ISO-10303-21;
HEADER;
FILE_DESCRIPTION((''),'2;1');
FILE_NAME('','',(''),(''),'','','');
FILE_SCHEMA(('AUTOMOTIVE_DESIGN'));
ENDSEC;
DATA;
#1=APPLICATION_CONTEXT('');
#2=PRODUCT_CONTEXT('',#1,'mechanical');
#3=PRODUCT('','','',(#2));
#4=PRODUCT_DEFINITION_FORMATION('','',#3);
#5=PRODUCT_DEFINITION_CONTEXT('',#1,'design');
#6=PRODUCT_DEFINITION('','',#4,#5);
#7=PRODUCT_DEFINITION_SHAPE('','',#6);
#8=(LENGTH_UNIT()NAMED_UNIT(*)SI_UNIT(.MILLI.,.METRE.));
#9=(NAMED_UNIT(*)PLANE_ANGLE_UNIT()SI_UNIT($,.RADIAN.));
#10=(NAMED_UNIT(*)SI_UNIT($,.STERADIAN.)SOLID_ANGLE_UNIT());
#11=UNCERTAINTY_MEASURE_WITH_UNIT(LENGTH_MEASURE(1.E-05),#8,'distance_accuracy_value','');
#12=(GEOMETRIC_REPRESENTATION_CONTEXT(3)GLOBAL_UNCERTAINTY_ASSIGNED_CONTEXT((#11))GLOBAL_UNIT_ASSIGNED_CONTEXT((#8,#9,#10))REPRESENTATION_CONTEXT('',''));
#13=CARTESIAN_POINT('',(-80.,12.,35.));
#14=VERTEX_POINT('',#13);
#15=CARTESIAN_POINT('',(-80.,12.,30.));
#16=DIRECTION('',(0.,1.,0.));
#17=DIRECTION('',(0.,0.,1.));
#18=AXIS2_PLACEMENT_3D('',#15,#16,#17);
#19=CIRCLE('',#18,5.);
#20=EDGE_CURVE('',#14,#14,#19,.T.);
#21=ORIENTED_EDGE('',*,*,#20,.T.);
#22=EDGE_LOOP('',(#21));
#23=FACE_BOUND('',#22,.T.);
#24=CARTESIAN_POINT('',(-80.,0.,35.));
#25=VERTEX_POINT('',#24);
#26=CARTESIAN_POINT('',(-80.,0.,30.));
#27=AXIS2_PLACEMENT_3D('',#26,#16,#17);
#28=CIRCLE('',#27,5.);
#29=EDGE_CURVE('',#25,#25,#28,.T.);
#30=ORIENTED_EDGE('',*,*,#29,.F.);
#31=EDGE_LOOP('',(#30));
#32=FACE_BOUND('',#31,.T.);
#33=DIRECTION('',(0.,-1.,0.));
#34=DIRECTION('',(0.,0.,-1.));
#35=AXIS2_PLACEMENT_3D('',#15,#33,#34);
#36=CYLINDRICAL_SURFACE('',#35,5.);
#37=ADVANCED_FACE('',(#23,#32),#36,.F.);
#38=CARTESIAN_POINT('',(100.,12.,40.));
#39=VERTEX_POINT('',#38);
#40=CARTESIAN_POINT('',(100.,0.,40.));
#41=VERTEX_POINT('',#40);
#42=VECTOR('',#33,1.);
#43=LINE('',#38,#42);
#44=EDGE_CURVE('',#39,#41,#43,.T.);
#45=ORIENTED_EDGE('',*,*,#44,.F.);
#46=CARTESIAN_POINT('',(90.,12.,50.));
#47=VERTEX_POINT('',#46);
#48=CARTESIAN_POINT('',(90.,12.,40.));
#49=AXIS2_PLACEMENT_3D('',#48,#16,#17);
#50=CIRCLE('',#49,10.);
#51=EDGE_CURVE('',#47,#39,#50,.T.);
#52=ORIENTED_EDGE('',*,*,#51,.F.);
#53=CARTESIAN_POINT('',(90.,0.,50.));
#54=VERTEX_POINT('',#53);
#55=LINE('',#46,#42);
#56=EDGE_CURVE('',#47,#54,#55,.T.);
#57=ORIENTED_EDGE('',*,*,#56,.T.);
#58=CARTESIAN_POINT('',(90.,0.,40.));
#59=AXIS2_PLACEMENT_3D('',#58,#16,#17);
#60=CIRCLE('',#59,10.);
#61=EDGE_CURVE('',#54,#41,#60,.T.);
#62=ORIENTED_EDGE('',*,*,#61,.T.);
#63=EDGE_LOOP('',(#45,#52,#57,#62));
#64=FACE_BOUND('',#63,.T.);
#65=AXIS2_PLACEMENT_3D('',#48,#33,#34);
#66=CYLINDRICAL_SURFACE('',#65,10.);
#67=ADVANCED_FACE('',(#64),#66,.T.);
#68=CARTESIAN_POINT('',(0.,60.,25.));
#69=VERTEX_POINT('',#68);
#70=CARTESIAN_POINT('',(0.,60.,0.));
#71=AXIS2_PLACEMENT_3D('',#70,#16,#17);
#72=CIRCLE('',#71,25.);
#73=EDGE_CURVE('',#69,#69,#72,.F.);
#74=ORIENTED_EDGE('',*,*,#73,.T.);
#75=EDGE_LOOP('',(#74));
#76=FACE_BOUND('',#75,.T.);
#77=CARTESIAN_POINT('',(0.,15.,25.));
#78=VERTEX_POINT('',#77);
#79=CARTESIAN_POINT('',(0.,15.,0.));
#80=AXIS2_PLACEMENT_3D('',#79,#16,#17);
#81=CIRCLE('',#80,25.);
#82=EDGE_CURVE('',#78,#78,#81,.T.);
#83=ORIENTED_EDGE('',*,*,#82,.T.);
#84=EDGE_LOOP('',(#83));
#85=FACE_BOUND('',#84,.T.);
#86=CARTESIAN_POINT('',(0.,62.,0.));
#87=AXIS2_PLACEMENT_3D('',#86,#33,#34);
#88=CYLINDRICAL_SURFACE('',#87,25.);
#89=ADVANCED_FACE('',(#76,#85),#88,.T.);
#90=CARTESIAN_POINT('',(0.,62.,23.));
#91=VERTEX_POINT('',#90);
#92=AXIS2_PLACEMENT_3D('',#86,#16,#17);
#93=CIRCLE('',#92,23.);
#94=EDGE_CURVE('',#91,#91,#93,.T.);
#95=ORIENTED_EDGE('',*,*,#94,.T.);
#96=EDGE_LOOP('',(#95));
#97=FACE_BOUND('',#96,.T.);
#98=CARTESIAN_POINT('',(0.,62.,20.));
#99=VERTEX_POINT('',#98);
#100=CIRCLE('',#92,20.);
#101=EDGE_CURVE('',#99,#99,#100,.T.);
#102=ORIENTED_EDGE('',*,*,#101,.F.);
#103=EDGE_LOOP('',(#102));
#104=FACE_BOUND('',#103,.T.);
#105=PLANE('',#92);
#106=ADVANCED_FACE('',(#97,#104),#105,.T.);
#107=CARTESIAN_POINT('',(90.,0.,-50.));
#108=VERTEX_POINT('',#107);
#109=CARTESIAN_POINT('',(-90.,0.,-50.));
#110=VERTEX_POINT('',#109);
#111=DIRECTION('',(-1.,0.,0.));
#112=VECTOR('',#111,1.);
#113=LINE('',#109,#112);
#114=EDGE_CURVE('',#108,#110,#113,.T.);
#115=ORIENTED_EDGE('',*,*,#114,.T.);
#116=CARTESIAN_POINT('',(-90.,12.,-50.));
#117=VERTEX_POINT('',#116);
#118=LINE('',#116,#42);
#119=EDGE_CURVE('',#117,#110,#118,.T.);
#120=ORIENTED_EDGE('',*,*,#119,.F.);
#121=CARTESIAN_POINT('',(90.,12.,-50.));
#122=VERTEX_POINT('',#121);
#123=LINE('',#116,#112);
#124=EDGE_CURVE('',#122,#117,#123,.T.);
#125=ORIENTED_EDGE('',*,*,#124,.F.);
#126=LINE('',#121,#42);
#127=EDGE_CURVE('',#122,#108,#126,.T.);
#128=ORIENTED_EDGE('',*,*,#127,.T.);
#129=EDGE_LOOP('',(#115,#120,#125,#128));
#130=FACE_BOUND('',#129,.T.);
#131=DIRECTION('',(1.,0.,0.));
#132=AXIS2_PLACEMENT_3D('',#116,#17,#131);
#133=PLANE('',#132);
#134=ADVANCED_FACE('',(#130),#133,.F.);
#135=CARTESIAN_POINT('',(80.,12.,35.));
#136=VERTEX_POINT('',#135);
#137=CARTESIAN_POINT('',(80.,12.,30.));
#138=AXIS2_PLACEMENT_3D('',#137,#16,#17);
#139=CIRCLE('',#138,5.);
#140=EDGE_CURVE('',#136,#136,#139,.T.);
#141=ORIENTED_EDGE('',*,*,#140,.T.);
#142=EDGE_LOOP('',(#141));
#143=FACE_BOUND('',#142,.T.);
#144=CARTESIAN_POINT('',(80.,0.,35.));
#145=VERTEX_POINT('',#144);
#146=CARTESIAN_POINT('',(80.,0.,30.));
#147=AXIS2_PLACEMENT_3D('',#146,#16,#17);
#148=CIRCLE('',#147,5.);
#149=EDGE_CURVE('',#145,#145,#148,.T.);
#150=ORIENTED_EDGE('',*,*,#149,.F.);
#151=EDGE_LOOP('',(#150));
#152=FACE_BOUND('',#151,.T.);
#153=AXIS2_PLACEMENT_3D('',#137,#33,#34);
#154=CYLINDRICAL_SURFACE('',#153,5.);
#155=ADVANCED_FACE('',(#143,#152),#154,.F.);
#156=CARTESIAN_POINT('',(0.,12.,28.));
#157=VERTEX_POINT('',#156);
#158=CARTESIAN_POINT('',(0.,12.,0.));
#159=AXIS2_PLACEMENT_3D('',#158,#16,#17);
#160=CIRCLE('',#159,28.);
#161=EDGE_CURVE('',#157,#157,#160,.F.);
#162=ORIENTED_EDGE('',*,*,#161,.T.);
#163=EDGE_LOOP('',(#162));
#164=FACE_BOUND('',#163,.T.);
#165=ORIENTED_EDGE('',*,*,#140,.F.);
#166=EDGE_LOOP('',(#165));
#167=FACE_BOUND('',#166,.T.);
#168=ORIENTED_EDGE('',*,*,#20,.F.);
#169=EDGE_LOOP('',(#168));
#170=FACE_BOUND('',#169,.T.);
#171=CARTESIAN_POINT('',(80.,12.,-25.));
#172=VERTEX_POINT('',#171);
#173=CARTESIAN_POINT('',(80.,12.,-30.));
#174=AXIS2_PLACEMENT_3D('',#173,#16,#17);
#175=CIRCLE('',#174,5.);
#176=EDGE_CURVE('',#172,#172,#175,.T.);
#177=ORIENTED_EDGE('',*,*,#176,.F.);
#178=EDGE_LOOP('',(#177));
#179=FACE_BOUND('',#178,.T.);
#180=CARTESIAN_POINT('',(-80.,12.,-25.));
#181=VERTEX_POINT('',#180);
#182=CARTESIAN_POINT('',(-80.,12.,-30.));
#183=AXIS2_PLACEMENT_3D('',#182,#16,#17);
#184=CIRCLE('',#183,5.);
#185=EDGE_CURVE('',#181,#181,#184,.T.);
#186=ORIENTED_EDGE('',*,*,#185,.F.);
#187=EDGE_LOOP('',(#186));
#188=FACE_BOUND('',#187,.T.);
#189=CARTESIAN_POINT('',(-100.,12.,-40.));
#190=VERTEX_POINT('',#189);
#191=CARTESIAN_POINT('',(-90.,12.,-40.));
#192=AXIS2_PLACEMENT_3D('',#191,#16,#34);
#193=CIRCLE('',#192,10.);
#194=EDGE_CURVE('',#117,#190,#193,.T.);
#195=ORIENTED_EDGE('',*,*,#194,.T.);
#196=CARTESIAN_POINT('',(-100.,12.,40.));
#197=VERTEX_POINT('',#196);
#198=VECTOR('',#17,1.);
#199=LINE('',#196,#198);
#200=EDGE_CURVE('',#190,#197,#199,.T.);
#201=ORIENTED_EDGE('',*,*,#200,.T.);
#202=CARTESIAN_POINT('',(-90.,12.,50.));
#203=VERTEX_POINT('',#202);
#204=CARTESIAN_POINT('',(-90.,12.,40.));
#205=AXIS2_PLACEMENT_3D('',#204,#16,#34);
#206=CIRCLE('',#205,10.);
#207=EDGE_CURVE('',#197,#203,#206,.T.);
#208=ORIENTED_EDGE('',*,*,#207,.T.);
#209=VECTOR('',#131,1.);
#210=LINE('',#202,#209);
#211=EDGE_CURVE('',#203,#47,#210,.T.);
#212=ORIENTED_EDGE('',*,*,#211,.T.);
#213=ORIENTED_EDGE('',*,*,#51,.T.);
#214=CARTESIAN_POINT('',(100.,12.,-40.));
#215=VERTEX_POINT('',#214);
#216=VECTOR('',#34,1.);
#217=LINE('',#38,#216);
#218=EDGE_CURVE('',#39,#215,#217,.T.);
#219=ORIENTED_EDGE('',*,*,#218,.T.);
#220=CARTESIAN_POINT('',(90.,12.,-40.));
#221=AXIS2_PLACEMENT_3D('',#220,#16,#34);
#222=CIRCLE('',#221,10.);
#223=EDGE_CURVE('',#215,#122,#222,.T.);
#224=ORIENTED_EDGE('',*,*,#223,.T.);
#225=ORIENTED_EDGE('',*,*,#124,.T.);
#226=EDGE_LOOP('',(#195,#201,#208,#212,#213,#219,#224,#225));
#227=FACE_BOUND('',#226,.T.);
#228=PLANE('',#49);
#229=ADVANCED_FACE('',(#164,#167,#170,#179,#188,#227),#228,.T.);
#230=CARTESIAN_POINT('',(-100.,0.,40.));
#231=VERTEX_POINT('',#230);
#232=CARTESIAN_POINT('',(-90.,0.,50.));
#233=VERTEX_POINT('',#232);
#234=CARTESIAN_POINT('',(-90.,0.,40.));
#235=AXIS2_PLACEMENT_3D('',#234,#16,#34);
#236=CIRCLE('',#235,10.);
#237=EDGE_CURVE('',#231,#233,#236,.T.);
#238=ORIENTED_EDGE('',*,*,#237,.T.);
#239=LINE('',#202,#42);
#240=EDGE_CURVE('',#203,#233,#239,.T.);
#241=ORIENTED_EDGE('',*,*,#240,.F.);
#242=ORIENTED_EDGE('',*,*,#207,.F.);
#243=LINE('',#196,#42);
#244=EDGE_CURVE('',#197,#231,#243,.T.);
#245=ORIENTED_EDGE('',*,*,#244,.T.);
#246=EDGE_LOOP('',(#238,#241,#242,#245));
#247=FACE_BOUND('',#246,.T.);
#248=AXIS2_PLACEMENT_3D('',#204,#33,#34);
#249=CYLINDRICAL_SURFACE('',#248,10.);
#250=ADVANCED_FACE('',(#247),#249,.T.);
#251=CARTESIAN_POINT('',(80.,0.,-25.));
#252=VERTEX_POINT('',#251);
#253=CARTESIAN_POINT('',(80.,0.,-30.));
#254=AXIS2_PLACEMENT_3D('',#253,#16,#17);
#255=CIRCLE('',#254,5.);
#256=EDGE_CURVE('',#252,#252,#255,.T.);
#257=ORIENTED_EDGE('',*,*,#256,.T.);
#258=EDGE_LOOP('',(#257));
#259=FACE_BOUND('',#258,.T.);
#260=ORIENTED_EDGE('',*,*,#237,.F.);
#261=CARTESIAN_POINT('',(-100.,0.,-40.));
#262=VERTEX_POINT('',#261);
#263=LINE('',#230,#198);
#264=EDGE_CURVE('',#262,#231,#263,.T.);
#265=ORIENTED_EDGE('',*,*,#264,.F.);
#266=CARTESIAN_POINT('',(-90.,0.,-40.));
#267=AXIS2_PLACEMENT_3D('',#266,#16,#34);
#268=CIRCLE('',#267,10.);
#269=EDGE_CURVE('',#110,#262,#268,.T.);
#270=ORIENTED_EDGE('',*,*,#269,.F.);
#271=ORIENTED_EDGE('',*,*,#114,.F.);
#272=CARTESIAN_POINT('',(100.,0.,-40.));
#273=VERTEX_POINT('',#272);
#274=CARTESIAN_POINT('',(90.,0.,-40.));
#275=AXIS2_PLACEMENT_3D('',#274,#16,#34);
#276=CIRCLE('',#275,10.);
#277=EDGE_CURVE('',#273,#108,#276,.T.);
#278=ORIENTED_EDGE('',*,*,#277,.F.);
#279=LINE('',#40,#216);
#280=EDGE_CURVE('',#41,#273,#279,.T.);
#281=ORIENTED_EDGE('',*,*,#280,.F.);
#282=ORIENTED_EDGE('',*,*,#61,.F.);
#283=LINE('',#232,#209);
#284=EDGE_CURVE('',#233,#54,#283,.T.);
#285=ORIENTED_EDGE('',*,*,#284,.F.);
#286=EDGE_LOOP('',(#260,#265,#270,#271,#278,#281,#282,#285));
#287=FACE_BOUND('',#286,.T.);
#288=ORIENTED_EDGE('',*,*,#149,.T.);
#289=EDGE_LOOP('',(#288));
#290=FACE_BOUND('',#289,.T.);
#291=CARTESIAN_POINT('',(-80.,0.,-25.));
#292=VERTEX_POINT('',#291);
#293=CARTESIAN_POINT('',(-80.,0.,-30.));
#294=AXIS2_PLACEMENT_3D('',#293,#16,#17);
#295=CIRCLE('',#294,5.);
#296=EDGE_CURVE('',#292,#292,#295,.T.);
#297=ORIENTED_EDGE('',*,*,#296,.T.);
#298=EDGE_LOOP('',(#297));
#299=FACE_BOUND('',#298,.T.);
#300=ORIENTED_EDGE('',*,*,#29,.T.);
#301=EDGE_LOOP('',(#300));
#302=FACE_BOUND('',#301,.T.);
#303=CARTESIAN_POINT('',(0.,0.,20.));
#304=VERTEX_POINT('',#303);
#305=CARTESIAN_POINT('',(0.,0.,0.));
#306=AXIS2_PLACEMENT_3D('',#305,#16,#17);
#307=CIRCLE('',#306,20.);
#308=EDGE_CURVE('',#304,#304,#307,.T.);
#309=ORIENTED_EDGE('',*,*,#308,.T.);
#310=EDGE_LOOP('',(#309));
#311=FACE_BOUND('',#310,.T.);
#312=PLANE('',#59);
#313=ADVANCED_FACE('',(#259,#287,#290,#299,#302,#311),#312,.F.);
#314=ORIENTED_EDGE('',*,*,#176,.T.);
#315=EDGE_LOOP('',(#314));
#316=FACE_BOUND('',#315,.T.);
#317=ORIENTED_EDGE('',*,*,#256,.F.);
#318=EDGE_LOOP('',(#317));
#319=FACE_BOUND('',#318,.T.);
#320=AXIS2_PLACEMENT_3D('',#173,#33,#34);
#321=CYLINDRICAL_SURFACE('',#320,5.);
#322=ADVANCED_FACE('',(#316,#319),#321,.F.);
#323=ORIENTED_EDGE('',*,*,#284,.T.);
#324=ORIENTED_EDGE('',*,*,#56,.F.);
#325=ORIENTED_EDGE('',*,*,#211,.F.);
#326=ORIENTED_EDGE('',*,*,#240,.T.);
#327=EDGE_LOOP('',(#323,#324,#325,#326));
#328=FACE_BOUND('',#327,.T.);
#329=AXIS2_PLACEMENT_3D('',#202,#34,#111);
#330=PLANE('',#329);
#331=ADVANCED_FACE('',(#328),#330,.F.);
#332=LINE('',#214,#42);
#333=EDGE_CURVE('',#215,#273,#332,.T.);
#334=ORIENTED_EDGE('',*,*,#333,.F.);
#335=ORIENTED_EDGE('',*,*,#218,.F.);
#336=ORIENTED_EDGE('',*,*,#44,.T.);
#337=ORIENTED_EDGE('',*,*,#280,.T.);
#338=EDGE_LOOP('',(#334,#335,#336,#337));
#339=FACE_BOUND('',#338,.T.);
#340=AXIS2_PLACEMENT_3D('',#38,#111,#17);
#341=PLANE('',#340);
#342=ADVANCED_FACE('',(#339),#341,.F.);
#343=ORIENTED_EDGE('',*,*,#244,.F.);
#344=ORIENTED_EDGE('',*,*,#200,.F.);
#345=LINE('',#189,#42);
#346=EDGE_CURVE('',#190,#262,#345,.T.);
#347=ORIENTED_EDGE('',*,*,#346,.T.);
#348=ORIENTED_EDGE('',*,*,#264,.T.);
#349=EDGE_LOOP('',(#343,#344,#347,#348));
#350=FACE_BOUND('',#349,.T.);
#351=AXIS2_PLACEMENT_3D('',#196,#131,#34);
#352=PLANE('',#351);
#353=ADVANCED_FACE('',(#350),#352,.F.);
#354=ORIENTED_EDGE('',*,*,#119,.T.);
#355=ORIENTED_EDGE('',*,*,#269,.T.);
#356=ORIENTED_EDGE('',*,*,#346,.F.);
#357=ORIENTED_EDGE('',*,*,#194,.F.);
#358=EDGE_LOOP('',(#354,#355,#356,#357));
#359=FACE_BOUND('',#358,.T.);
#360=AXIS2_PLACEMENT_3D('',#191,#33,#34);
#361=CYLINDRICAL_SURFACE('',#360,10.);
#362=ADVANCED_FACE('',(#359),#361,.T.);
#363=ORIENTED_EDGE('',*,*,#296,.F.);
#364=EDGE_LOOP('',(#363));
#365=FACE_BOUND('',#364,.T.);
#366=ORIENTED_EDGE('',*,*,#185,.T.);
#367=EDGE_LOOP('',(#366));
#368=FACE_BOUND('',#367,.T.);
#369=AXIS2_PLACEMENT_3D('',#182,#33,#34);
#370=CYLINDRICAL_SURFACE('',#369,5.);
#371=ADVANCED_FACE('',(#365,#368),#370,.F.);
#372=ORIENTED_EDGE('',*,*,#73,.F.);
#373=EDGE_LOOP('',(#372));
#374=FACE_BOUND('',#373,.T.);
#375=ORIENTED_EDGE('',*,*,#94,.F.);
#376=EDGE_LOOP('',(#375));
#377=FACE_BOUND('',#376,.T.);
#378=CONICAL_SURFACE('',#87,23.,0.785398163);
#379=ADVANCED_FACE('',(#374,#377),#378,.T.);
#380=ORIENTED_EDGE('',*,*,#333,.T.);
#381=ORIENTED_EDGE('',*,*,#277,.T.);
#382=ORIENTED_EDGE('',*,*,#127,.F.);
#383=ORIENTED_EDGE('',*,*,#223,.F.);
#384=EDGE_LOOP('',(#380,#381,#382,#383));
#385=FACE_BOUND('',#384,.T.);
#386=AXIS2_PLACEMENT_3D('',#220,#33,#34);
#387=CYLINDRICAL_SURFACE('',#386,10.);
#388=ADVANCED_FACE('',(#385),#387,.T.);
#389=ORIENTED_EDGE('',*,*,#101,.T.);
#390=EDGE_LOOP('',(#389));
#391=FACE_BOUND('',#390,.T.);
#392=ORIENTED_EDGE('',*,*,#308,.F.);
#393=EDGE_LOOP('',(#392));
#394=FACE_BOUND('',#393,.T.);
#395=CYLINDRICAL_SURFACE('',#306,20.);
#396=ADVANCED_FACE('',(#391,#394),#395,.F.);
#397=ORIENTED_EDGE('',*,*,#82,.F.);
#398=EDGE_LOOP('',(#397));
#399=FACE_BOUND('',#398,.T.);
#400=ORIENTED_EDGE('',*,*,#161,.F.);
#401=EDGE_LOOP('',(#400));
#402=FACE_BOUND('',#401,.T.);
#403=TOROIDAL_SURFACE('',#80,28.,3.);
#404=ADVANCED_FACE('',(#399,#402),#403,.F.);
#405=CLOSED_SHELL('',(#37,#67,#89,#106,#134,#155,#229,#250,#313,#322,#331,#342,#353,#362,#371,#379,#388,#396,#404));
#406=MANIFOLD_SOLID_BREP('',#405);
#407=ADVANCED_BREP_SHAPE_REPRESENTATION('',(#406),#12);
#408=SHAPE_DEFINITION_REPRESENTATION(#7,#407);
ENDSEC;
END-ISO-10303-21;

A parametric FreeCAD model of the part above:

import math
import FreeCAD as App
import Part
import Sketcher

V = App.Vector


def edges_at(feature, points):
    """Names of the edges that pass closest to the given points."""
    edges = feature.Shape.Edges
    near = lambda p: min(range(len(edges)), key=lambda i: edges[i].distToShape(Part.Vertex(*p))[0])
    return sorted({f"Edge{near(p) + 1}" for p in points})

doc = App.newDocument("Part")
body = doc.addObject("PartDesign::Body", "Body")

sketch1 = body.newObject("Sketcher::SketchObject", "Sketch")
sketch1.AttachmentSupport = (doc.getObject("XZ_Plane"), [""])
sketch1.MapMode = "FlatFace"
sketch1.addGeometry([
    Part.LineSegment(V(-90, 50, 0), V(90, 50, 0)),
    Part.ArcOfCircle(Part.Circle(V(90, 40, 0), V(0, 0, 1), 10), math.radians(0), math.radians(90)),
    Part.LineSegment(V(100, 40, 0), V(100, -40, 0)),
    Part.ArcOfCircle(Part.Circle(V(90, -40, 0), V(0, 0, 1), 10), math.radians(-90), math.radians(0)),
    Part.LineSegment(V(90, -50, 0), V(-90, -50, 0)),
    Part.ArcOfCircle(Part.Circle(V(-90, -40, 0), V(0, 0, 1), 10), math.radians(180), math.radians(270)),
    Part.LineSegment(V(-100, -40, 0), V(-100, 40, 0)),
    Part.ArcOfCircle(Part.Circle(V(-90, 40, 0), V(0, 0, 1), 10), math.radians(90), math.radians(180)),
    Part.Circle(V(-80, 30, 0), V(0, 0, 1), 5),
    Part.Circle(V(80, 30, 0), V(0, 0, 1), 5),
    Part.Circle(V(-80, -30, 0), V(0, 0, 1), 5),
    Part.Circle(V(80, -30, 0), V(0, 0, 1), 5),
], False)
sketch1.addConstraint([
    Sketcher.Constraint("Tangent", 0, 2, 1, 2),
    Sketcher.Constraint("Tangent", 1, 1, 2, 1),
    Sketcher.Constraint("Tangent", 2, 2, 3, 2),
    Sketcher.Constraint("Tangent", 3, 1, 4, 1),
    Sketcher.Constraint("Tangent", 4, 2, 5, 2),
    Sketcher.Constraint("Tangent", 5, 1, 6, 1),
    Sketcher.Constraint("Tangent", 6, 2, 7, 2),
    Sketcher.Constraint("Tangent", 7, 1, 0, 1),
    Sketcher.Constraint("Horizontal", 0),
    Sketcher.Constraint("Vertical", 2),
    Sketcher.Constraint("Horizontal", 4),
    Sketcher.Constraint("Vertical", 6),
    Sketcher.Constraint("Equal", 1, 3),
    Sketcher.Constraint("Equal", 3, 5),
    Sketcher.Constraint("Equal", 5, 7),
    Sketcher.Constraint("Equal", 8, 9),
    Sketcher.Constraint("Equal", 9, 10),
    Sketcher.Constraint("Equal", 10, 11),
    Sketcher.Constraint("Symmetric", 1, 3, 5, 3, -1, 1),
    Sketcher.Constraint("Symmetric", 9, 3, 10, 3, -1, 1),
    Sketcher.Constraint("Symmetric", 8, 3, 11, 3, -1, 1),
    Sketcher.Constraint("Symmetric", 8, 3, 9, 3, -2),
    Sketcher.Constraint("Diameter", 8, 10.0),
    Sketcher.Constraint("Radius", 1, 10.0),
    Sketcher.Constraint("DistanceX", 0, 1, 0, 2, 180.0),
    Sketcher.Constraint("DistanceY", 2, 2, 2, 1, 80.0),
    Sketcher.Constraint("DistanceX", 8, 3, -1, 1, 80.0),
    Sketcher.Constraint("DistanceY", -1, 1, 8, 3, 30.0),
])
pad1 = body.newObject("PartDesign::Pad", "Pad")
pad1.Profile = sketch1
pad1.Length = 12
pad1.Reversed = True

sketch2 = body.newObject("Sketcher::SketchObject", "Sketch001")
sketch2.AttachmentSupport = (doc.getObject("XZ_Plane"), [""])
sketch2.MapMode = "FlatFace"
sketch2.AttachmentOffset = App.Placement(V(0, 0, -12), App.Rotation())
sketch2.addGeometry(Part.Circle(V(0, 0, 0), V(0, 0, 1), 25), False)
sketch2.addConstraint([
    Sketcher.Constraint("Coincident", 0, 3, -1, 1),
    Sketcher.Constraint("Diameter", 0, 50.0),
])
pad2 = body.newObject("PartDesign::Pad", "Pad001")
pad2.Profile = sketch2
pad2.Length = 50
pad2.Reversed = True

sketch3 = body.newObject("Sketcher::SketchObject", "Sketch002")
sketch3.AttachmentSupport = (doc.getObject("XZ_Plane"), [""])
sketch3.MapMode = "FlatFace"
sketch3.AttachmentOffset = App.Placement(V(0, 0, -62), App.Rotation())
sketch3.addGeometry(Part.Circle(V(0, 0, 0), V(0, 0, 1), 20), False)
sketch3.addConstraint([
    Sketcher.Constraint("Coincident", 0, 3, -1, 1),
    Sketcher.Constraint("Diameter", 0, 40.0),
])
pocket1 = body.newObject("PartDesign::Pocket", "Pocket")
pocket1.Profile = sketch3
pocket1.Type = "ThroughAll"
pocket1.Reversed = True
doc.recompute()

fillet = body.newObject("PartDesign::Fillet", "Fillet")
fillet.Base = (pocket1, edges_at(pocket1, [(-25, 12, 0)]))
fillet.Radius = 3
doc.recompute()

chamfer = body.newObject("PartDesign::Chamfer", "Chamfer")
chamfer.Base = (fillet, edges_at(fillet, [(-25, 62, 0)]))
chamfer.Size = 2

doc.recompute()
